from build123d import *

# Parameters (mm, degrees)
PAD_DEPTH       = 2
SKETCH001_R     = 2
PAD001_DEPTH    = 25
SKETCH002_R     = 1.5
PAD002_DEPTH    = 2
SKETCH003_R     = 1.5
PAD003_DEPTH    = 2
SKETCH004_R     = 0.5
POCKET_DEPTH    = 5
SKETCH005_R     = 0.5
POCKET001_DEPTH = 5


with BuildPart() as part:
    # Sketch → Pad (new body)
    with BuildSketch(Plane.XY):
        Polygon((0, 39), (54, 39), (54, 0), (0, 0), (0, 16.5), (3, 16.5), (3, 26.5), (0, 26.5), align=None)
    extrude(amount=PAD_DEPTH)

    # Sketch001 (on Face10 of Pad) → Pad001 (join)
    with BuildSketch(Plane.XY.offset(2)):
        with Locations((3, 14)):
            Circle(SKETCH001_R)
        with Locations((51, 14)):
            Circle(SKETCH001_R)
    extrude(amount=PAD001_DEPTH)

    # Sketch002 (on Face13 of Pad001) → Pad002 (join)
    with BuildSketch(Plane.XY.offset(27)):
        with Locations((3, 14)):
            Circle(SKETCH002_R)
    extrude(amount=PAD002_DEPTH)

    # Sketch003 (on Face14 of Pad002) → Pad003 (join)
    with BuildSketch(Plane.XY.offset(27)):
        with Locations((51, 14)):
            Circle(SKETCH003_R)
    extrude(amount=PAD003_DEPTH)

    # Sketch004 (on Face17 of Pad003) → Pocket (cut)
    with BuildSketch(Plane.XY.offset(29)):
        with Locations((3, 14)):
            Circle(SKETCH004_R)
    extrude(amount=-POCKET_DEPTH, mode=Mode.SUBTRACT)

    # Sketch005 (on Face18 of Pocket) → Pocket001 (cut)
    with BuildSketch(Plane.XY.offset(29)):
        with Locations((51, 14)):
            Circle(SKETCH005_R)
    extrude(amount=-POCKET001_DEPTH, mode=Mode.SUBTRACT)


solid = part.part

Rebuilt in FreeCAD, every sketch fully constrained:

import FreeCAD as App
import Part
import Sketcher

V = App.Vector
Q = App.Units.Quantity

doc = App.newDocument("Part")
body = doc.addObject("PartDesign::Body", "Body")

# Sketch on XY plane
sketch1 = body.newObject("Sketcher::SketchObject", "Sketch")
sketch1.AttachmentSupport = (doc.getObject("XY_Plane"), [""])
sketch1.MapMode = "FlatFace"
sketch1.addGeometry([
    Part.LineSegment(V(54, 39, 0), V(0, 39, 0)),  # 0
    Part.LineSegment(V(0, 39, 0), V(0, 26.5, 0)),  # 1
    Part.LineSegment(V(0, 26.5, 0), V(3, 26.5, 0)),  # 2
    Part.LineSegment(V(3, 26.5, 0), V(3, 16.5, 0)),  # 3
    Part.LineSegment(V(3, 16.5, 0), V(0, 16.5, 0)),  # 4
    Part.LineSegment(V(0, 16.5, 0), V(0, 0, 0)),  # 5
    Part.LineSegment(V(0, 0, 0), V(54, 0, 0)),  # 6
    Part.LineSegment(V(54, 0, 0), V(54, 39, 0)),  # 7
], False)
sketch1.addConstraint([
    Sketcher.Constraint("Coincident", 0, 2, 1, 1),
    Sketcher.Constraint("Coincident", 1, 2, 2, 1),
    Sketcher.Constraint("Coincident", 2, 2, 3, 1),
    Sketcher.Constraint("Coincident", 3, 2, 4, 1),
    Sketcher.Constraint("Coincident", 4, 2, 5, 1),
    Sketcher.Constraint("Coincident", 5, 2, 6, 1),
    Sketcher.Constraint("Coincident", 6, 2, 7, 1),
    Sketcher.Constraint("Coincident", 7, 2, 0, 1),
    Sketcher.Constraint("Horizontal", 0),
    Sketcher.Constraint("Vertical", 1),
    Sketcher.Constraint("Horizontal", 2),
    Sketcher.Constraint("Vertical", 3),
    Sketcher.Constraint("Horizontal", 4),
    Sketcher.Constraint("Vertical", 5),
    Sketcher.Constraint("Horizontal", 6),
    Sketcher.Constraint("Vertical", 7),
    Sketcher.Constraint("Coincident", 5, 2, -1, 1),
    Sketcher.Constraint("PointOnObject", 0, 2, -2),
    Sketcher.Constraint("DistanceX", 0, 2, 0, 1, Q("54 mm")),
    Sketcher.Constraint("DistanceX", 2, 1, 2, 2, Q("3 mm")),
    Sketcher.Constraint("DistanceY", 3, 2, 3, 1, Q("10 mm")),
    Sketcher.Constraint("DistanceY", 7, 1, 7, 2, Q("39 mm")),
    Sketcher.Constraint("DistanceY", 1, 2, 1, 1, Q("12.5 mm")),
])
pad1 = body.newObject("PartDesign::Pad", "Pad")
pad1.Profile = sketch1
pad1.Length = 2

# Sketch on XY plane
sketch2 = body.newObject("Sketcher::SketchObject", "Sketch001")
sketch2.AttachmentSupport = (doc.getObject("XY_Plane"), [""])
sketch2.MapMode = "FlatFace"
sketch2.AttachmentOffset = App.Placement(V(0, 0, 2), App.Rotation())
sketch2.addGeometry([
    Part.Circle(V(3, 14, 0), V(0, 0, 1), 2),
    Part.Circle(V(51, 14, 0), V(0, 0, 1), 2),
], False)
sketch2.addConstraint([
    Sketcher.Constraint("Equal", 0, 1),
    Sketcher.Constraint("Horizontal", 0, 3, 1, 3),
    Sketcher.Constraint("Diameter", 0, Q("4 mm")),
    Sketcher.Constraint("DistanceX", -1, 1, 0, 3, Q("3 mm")),
    Sketcher.Constraint("DistanceY", -1, 1, 0, 3, Q("14 mm")),
    Sketcher.Constraint("DistanceX", -1, 1, 1, 3, Q("51 mm")),
])
pad2 = body.newObject("PartDesign::Pad", "Pad001")
pad2.Profile = sketch2
pad2.Length = 25

# Sketch on XY plane
sketch3 = body.newObject("Sketcher::SketchObject", "Sketch002")
sketch3.AttachmentSupport = (doc.getObject("XY_Plane"), [""])
sketch3.MapMode = "FlatFace"
sketch3.AttachmentOffset = App.Placement(V(0, 0, 27), App.Rotation())
sketch3.addGeometry(Part.Circle(V(3, 14, 0), V(0, 0, 1), 1.5), False)
sketch3.addConstraint([
    Sketcher.Constraint("Diameter", 0, Q("3 mm")),
    Sketcher.Constraint("DistanceX", -1, 1, 0, 3, Q("3 mm")),
    Sketcher.Constraint("DistanceY", -1, 1, 0, 3, Q("14 mm")),
])
pad3 = body.newObject("PartDesign::Pad", "Pad002")
pad3.Profile = sketch3
pad3.Length = 2

# Sketch on XY plane
sketch4 = body.newObject("Sketcher::SketchObject", "Sketch003")
sketch4.AttachmentSupport = (doc.getObject("XY_Plane"), [""])
sketch4.MapMode = "FlatFace"
sketch4.AttachmentOffset = App.Placement(V(0, 0, 27), App.Rotation())
sketch4.addGeometry(Part.Circle(V(51, 14, 0), V(0, 0, 1), 1.5), False)
sketch4.addConstraint([
    Sketcher.Constraint("Diameter", 0, Q("3 mm")),
    Sketcher.Constraint("DistanceX", -1, 1, 0, 3, Q("51 mm")),
    Sketcher.Constraint("DistanceY", -1, 1, 0, 3, Q("14 mm")),
])
pad4 = body.newObject("PartDesign::Pad", "Pad003")
pad4.Profile = sketch4
pad4.Length = 2

# Sketch on XY plane
sketch5 = body.newObject("Sketcher::SketchObject", "Sketch004")
sketch5.AttachmentSupport = (doc.getObject("XY_Plane"), [""])
sketch5.MapMode = "FlatFace"
sketch5.AttachmentOffset = App.Placement(V(0, 0, 29), App.Rotation())
sketch5.addGeometry(Part.Circle(V(3, 14, 0), V(0, 0, 1), 0.5), False)
sketch5.addConstraint([
    Sketcher.Constraint("Diameter", 0, Q("1 mm")),
    Sketcher.Constraint("DistanceX", -1, 1, 0, 3, Q("3 mm")),
    Sketcher.Constraint("DistanceY", -1, 1, 0, 3, Q("14 mm")),
])
pocket1 = body.newObject("PartDesign::Pocket", "Pocket")
pocket1.Profile = sketch5
pocket1.Length = 5

# Sketch on XY plane
sketch6 = body.newObject("Sketcher::SketchObject", "Sketch005")
sketch6.AttachmentSupport = (doc.getObject("XY_Plane"), [""])
sketch6.MapMode = "FlatFace"
sketch6.AttachmentOffset = App.Placement(V(0, 0, 29), App.Rotation())
sketch6.addGeometry(Part.Circle(V(51, 14, 0), V(0, 0, 1), 0.5), False)
sketch6.addConstraint([
    Sketcher.Constraint("Diameter", 0, Q("1 mm")),
    Sketcher.Constraint("DistanceX", -1, 1, 0, 3, Q("51 mm")),
    Sketcher.Constraint("DistanceY", -1, 1, 0, 3, Q("14 mm")),
])
pocket2 = body.newObject("PartDesign::Pocket", "Pocket001")
pocket2.Profile = sketch6
pocket2.Length = 5

doc.recompute()
